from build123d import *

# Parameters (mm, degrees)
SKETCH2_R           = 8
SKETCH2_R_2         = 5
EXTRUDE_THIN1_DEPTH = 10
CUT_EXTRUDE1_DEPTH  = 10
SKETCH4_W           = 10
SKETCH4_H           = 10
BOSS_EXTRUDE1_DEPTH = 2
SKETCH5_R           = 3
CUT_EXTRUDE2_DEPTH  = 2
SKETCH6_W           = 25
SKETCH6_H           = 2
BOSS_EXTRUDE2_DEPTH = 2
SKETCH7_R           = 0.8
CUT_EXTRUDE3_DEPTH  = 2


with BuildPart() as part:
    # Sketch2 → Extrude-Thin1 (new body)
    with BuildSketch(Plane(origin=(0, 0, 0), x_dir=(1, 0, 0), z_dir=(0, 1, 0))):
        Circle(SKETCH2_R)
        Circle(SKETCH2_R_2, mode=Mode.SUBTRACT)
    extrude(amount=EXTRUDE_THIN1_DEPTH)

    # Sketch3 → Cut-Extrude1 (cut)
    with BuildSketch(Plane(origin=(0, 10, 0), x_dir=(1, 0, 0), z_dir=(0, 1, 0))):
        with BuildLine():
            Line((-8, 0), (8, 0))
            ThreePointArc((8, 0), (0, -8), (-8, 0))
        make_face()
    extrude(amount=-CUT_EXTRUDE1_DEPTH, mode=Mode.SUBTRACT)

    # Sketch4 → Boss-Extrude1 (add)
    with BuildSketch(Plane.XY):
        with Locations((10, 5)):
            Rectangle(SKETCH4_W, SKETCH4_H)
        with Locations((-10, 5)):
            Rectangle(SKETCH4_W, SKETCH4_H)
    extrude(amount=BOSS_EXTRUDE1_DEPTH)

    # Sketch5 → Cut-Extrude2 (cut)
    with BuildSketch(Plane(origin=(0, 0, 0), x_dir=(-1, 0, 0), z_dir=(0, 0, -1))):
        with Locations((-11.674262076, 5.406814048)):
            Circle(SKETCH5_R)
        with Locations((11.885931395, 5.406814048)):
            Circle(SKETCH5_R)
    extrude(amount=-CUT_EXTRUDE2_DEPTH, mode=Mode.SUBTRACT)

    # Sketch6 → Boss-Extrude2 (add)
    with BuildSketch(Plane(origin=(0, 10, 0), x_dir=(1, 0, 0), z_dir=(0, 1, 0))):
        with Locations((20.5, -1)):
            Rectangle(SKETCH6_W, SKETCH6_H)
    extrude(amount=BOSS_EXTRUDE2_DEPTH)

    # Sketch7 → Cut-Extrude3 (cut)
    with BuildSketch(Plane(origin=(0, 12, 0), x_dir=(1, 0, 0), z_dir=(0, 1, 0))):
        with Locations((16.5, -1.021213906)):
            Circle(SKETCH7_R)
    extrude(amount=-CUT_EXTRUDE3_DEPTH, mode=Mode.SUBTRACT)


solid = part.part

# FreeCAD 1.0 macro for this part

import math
import FreeCAD as App
import Part
import Sketcher

V = App.Vector
Q = App.Units.Quantity

doc = App.newDocument("Part")
params = doc.addObject("Spreadsheet::Sheet", "Params")
for row, (alias, value) in enumerate([
    ("sketch1_diameter", "16 mm"),
    ("sketch1_diameter2", "10 mm"),
    ("pad1_length", "10 mm"),
    ("sketch2_radius", "8 mm"),
    ("pocket1_length", "10 mm"),
    ("sketch3_width", "10 mm"),
    ("pad2_length", "2 mm"),
    ("sketch4_diameter", "6 mm"),
    ("pocket2_length", "2 mm"),
    ("sketch5_width", "25 mm"),
    ("sketch5_height", "2 mm"),
    ("pad3_length", "2 mm"),
    ("sketch6_diameter", "1.6 mm"),
    ("pocket3_length", "2 mm"),
], start=1):
    params.set(f"A{row}", alias)
    params.set(f"B{row}", "=" + value)
    params.setAlias(f"B{row}", alias)

body = doc.addObject("PartDesign::Body", "Body")

# Sketch on XZ plane
sketch1 = body.newObject("Sketcher::SketchObject", "Sketch")
sketch1.AttachmentSupport = (doc.getObject("XZ_Plane"), [""])
sketch1.MapMode = "FlatFace"
sketch1.addGeometry([
    Part.Circle(V(0, 0, 0), V(0, 0, 1), 8),
    Part.Circle(V(0, 0, 0), V(0, 0, 1), 5),
], False)
sketch1.addConstraint([
    Sketcher.Constraint("Coincident", 0, 3, -1, 1),
    Sketcher.Constraint("Coincident", 1, 3, -1, 1),
    Sketcher.Constraint("Diameter", 0, Q("16 mm")),
    Sketcher.Constraint("Diameter", 1, Q("10 mm")),
])
sketch1.setExpression("Constraints[2]", "Params.sketch1_diameter")
sketch1.setExpression("Constraints[3]", "Params.sketch1_diameter2")
pad1 = body.newObject("PartDesign::Pad", "Pad")
pad1.Profile = sketch1
pad1.setExpression("Length", "Params.pad1_length")
pad1.Reversed = True

# Sketch on XZ plane
sketch2 = body.newObject("Sketcher::SketchObject", "Sketch001")
sketch2.AttachmentSupport = (doc.getObject("XZ_Plane"), [""])
sketch2.MapMode = "FlatFace"
sketch2.AttachmentOffset = App.Placement(V(0, 0, -10), App.Rotation())
sketch2.addGeometry([
    Part.LineSegment(V(8, 0, 0), V(-8, 0, 0)),
    Part.ArcOfCircle(Part.Circle(V(0, 0, 0), V(0, 0, 1), 8), math.radians(0), math.radians(180)),
], False)
sketch2.addConstraint([
    Sketcher.Constraint("Coincident", 0, 1, 1, 1),
    Sketcher.Constraint("Coincident", 1, 2, 0, 2),
    Sketcher.Constraint("Horizontal", 0),
    Sketcher.Constraint("Coincident", 1, 3, -1, 1),
    Sketcher.Constraint("PointOnObject", 0, 1, -1),
    Sketcher.Constraint("Radius", 1, Q("8 mm")),
])
sketch2.setExpression("Constraints[5]", "Params.sketch2_radius")
pocket1 = body.newObject("PartDesign::Pocket", "Pocket")
pocket1.Profile = sketch2
pocket1.setExpression("Length", "Params.pocket1_length")
pocket1.Reversed = True

# Sketch on XY plane
sketch3 = body.newObject("Sketcher::SketchObject", "Sketch002")
sketch3.AttachmentSupport = (doc.getObject("XY_Plane"), [""])
sketch3.MapMode = "FlatFace"
sketch3.addGeometry([
    Part.LineSegment(V(5, 10, 0), V(5, 0, 0)),  # 0
    Part.LineSegment(V(5, 0, 0), V(15, 0, 0)),  # 1
    Part.LineSegment(V(15, 0, 0), V(15, 10, 0)),  # 2
    Part.LineSegment(V(15, 10, 0), V(5, 10, 0)),  # 3
    Part.LineSegment(V(-15, 10, 0), V(-15, 0, 0)),  # 4
    Part.LineSegment(V(-15, 0, 0), V(-5, 0, 0)),  # 5
    Part.LineSegment(V(-5, 0, 0), V(-5, 10, 0)),  # 6
    Part.LineSegment(V(-5, 10, 0), V(-15, 10, 0)),  # 7
], False)
sketch3.addConstraint([
    Sketcher.Constraint("Coincident", 0, 2, 1, 1),
    Sketcher.Constraint("Coincident", 1, 2, 2, 1),
    Sketcher.Constraint("Coincident", 2, 2, 3, 1),
    Sketcher.Constraint("Coincident", 3, 2, 0, 1),
    Sketcher.Constraint("Coincident", 4, 2, 5, 1),
    Sketcher.Constraint("Coincident", 5, 2, 6, 1),
    Sketcher.Constraint("Coincident", 6, 2, 7, 1),
    Sketcher.Constraint("Coincident", 7, 2, 4, 1),
    Sketcher.Constraint("Vertical", 0),
    Sketcher.Constraint("Horizontal", 1),
    Sketcher.Constraint("Vertical", 2),
    Sketcher.Constraint("Horizontal", 3),
    Sketcher.Constraint("Vertical", 4),
    Sketcher.Constraint("Horizontal", 5),
    Sketcher.Constraint("Vertical", 6),
    Sketcher.Constraint("Horizontal", 7),
    Sketcher.Constraint("Symmetric", 1, 2, 4, 2, -1, 1),
    Sketcher.Constraint("Symmetric", 0, 2, 5, 2, -2),
    Sketcher.Constraint("Horizontal", 3, 2, 6, 2),
    Sketcher.Constraint("Equal", 7, 0),
    Sketcher.Constraint("DistanceX", 1, 1, 1, 2, Q("10 mm")),
    Sketcher.Constraint("DistanceX", -1, 1, 0, 2, Q("5 mm")),
])
sketch3.setExpression("Constraints[20]", "Params.sketch3_width")
pad2 = body.newObject("PartDesign::Pad", "Pad001")
pad2.Profile = sketch3
pad2.setExpression("Length", "Params.pad2_length")

# Sketch on XY plane
sketch4 = body.newObject("Sketcher::SketchObject", "Sketch003")
sketch4.AttachmentSupport = (doc.getObject("XY_Plane"), [""])
sketch4.MapMode = "FlatFace"
sketch4.addGeometry([
    Part.Circle(V(11.674262, 5.406814, 0), V(0, 0, 1), 3),
    Part.Circle(V(-11.885931, 5.406814, 0), V(0, 0, 1), 3),
], False)
sketch4.addConstraint([
    Sketcher.Constraint("Equal", 0, 1),
    Sketcher.Constraint("Horizontal", 0, 3, 1, 3),
    Sketcher.Constraint("Diameter", 0, Q("6 mm")),
    Sketcher.Constraint("DistanceX", 1, 3, -1, 1, Q("11.885931 mm")),
    Sketcher.Constraint("DistanceX", -1, 1, 0, 3, Q("11.674262 mm")),
    Sketcher.Constraint("DistanceY", -1, 1, 0, 3, Q("5.406814 mm")),
])
sketch4.setExpression("Constraints[2]", "Params.sketch4_diameter")
pocket2 = body.newObject("PartDesign::Pocket", "Pocket001")
pocket2.Profile = sketch4
pocket2.setExpression("Length", "Params.pocket2_length")
pocket2.Reversed = True

# Sketch on XZ plane
sketch5 = body.newObject("Sketcher::SketchObject", "Sketch004")
sketch5.AttachmentSupport = (doc.getObject("XZ_Plane"), [""])
sketch5.MapMode = "FlatFace"
sketch5.AttachmentOffset = App.Placement(V(0, 0, -10), App.Rotation())
sketch5.addGeometry([
    Part.LineSegment(V(8, 0, 0), V(8, 2, 0)),
    Part.LineSegment(V(8, 2, 0), V(33, 2, 0)),
    Part.LineSegment(V(33, 2, 0), V(33, 0, 0)),
    Part.LineSegment(V(33, 0, 0), V(8, 0, 0)),
], False)
sketch5.addConstraint([
    Sketcher.Constraint("Coincident", 0, 2, 1, 1),
    Sketcher.Constraint("Coincident", 1, 2, 2, 1),
    Sketcher.Constraint("Coincident", 2, 2, 3, 1),
    Sketcher.Constraint("Coincident", 3, 2, 0, 1),
    Sketcher.Constraint("Vertical", 0),
    Sketcher.Constraint("Horizontal", 1),
    Sketcher.Constraint("Vertical", 2),
    Sketcher.Constraint("Horizontal", 3),
    Sketcher.Constraint("PointOnObject", 2, 2, -1),
    Sketcher.Constraint("DistanceX", 1, 1, 1, 2, Q("25 mm")),
    Sketcher.Constraint("DistanceY", 0, 1, 0, 2, Q("2 mm")),
    Sketcher.Constraint("DistanceX", -1, 1, 0, 2, Q("8 mm")),
])
sketch5.setExpression("Constraints[9]", "Params.sketch5_width")
sketch5.setExpression("Constraints[10]", "Params.sketch5_height")
pad3 = body.newObject("PartDesign::Pad", "Pad002")
pad3.Profile = sketch5
pad3.setExpression("Length", "Params.pad3_length")
pad3.Reversed = True

# Sketch on XZ plane
sketch6 = body.newObject("Sketcher::SketchObject", "Sketch005")
sketch6.AttachmentSupport = (doc.getObject("XZ_Plane"), [""])
sketch6.MapMode = "FlatFace"
sketch6.AttachmentOffset = App.Placement(V(0, 0, -12), App.Rotation())
sketch6.addGeometry(Part.Circle(V(16.5, 1.021214, 0), V(0, 0, 1), 0.8), False)
sketch6.addConstraint([
    Sketcher.Constraint("Diameter", 0, Q("1.6 mm")),
    Sketcher.Constraint("DistanceX", -1, 1, 0, 3, Q("16.5 mm")),
    Sketcher.Constraint("DistanceY", -1, 1, 0, 3, Q("1.021214 mm")),
])
sketch6.setExpression("Constraints[0]", "Params.sketch6_diameter")
pocket3 = body.newObject("PartDesign::Pocket", "Pocket002")
pocket3.Profile = sketch6
pocket3.setExpression("Length", "Params.pocket3_length")
pocket3.Reversed = True

doc.recompute()
